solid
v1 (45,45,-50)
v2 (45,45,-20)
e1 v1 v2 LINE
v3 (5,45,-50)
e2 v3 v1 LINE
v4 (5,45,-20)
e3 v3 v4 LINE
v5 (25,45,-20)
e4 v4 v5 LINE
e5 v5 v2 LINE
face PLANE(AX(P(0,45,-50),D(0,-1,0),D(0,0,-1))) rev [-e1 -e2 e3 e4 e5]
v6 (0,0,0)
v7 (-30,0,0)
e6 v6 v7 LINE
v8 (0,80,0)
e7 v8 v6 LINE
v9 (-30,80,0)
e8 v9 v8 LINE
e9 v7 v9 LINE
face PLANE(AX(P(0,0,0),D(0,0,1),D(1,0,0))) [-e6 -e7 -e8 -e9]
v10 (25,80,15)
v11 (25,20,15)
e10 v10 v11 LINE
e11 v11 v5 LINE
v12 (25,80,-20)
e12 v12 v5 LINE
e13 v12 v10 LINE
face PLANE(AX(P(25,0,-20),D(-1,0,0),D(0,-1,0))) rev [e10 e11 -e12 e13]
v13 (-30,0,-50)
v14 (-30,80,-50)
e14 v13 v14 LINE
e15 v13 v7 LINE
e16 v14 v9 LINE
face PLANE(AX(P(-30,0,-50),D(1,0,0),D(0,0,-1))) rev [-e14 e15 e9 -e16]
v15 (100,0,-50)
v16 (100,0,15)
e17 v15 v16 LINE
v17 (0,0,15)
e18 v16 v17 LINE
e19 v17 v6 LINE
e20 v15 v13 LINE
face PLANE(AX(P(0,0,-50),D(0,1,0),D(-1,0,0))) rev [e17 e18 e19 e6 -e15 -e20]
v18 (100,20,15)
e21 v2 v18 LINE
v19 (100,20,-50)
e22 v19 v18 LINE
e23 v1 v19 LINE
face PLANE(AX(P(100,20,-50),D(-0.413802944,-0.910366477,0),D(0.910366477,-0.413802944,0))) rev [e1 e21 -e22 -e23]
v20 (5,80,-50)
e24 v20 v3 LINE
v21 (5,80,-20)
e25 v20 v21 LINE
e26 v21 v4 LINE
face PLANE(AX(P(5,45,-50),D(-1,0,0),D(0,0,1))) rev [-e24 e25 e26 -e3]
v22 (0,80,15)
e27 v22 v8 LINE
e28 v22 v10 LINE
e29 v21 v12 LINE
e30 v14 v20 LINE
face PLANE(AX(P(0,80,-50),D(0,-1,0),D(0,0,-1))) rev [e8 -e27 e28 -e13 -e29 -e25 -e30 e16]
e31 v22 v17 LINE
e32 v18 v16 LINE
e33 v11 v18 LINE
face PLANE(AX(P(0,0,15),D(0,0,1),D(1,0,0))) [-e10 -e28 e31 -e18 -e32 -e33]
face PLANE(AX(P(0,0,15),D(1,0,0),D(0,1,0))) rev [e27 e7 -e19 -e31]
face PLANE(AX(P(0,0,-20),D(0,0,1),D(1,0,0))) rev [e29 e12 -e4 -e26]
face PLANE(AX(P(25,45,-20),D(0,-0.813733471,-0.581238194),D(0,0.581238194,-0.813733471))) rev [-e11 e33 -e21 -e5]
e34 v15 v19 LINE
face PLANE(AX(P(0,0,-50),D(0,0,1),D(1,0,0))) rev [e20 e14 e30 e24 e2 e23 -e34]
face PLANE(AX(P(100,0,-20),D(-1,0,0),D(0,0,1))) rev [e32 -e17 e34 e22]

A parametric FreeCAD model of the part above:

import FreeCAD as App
import Part
import Sketcher

V = App.Vector
Q = App.Units.Quantity

doc = App.newDocument("Part")
params = doc.addObject("Spreadsheet::Sheet", "Params")
for row, (alias, value) in enumerate([
    ("sketch1_width", "30 mm"),
    ("sketch1_height", "80 mm"),
    ("pad1_length", "50 mm"),
    ("sketch2_width", "100 mm"),
    ("sketch2_width2", "75 mm"),
    ("sketch2_height", "20 mm"),
    ("sketch2_height2", "60 mm"),
    ("pad2_length", "15 mm"),
    ("sketch3_width", "100 mm"),
    ("sketch3_width2", "75 mm"),
    ("sketch3_height", "20 mm"),
    ("sketch3_height2", "60 mm"),
    ("pad3_length", "20 mm"),
    ("sketch4_width", "25 mm"),
    ("sketch4_height", "45 mm"),
    ("pad4_length", "30 mm"),
    ("sketch5_width", "75 mm"),
    ("sketch5_height", "25 mm"),
    ("pad5_length", "65 mm"),
    ("sketch6_width", "75 mm"),
    ("sketch6_height", "20 mm"),
    ("pad6_length", "30 mm"),
    ("sketch7_width", "55 mm"),
    ("sketch7_height", "25 mm"),
    ("sketch8_width", "25 mm"),
    ("sketch8_height", "35 mm"),
    ("pocket2_length", "75 mm"),
    ("sketch9_width", "5 mm"),
    ("sketch9_height", "35 mm"),
    ("pad7_length", "30 mm"),
], start=1):
    params.set(f"A{row}", alias)
    params.set(f"B{row}", "=" + value)
    params.setAlias(f"B{row}", alias)

body = doc.addObject("PartDesign::Body", "Body")

sketch1 = body.newObject("Sketcher::SketchObject", "Sketch")
sketch1.AttachmentSupport = (doc.getObject("XY_Plane"), [""])
sketch1.MapMode = "FlatFace"
sketch1.addGeometry([
    Part.LineSegment(V(-30, 80, 0), V(-30, 0, 0)),
    Part.LineSegment(V(-30, 0, 0), V(0, 0, 0)),
    Part.LineSegment(V(0, 0, 0), V(0, 80, 0)),
    Part.LineSegment(V(0, 80, 0), V(-30, 80, 0)),
], False)
sketch1.addConstraint([
    Sketcher.Constraint("Coincident", 0, 2, 1, 1),
    Sketcher.Constraint("Coincident", 1, 2, 2, 1),
    Sketcher.Constraint("Coincident", 2, 2, 3, 1),
    Sketcher.Constraint("Coincident", 3, 2, 0, 1),
    Sketcher.Constraint("Vertical", 0),
    Sketcher.Constraint("Horizontal", 1),
    Sketcher.Constraint("Vertical", 2),
    Sketcher.Constraint("Horizontal", 3),
    Sketcher.Constraint("Coincident", 1, 2, -1, 1),
    Sketcher.Constraint("DistanceX", 1, 1, 1, 2, Q("30 mm")),
    Sketcher.Constraint("DistanceY", 0, 2, 0, 1, Q("80 mm")),
])
sketch1.setExpression("Constraints[9]", "Params.sketch1_width")
sketch1.setExpression("Constraints[10]", "Params.sketch1_height")
pad1 = body.newObject("PartDesign::Pad", "Pad")
pad1.Profile = sketch1
pad1.setExpression("Length", "Params.pad1_length")
pad1.Reversed = True
body2 = doc.addObject("PartDesign::Body", "Body001")

sketch2 = body2.newObject("Sketcher::SketchObject", "Sketch001")
sketch2.AttachmentSupport = (doc.getObject("XY_Plane001"), [""])
sketch2.MapMode = "FlatFace"
sketch2.addGeometry([
    Part.LineSegment(V(0, 0, 0), V(100, 0, 0)),
    Part.LineSegment(V(100, 0, 0), V(100, 20, 0)),
    Part.LineSegment(V(100, 20, 0), V(25, 20, 0)),
    Part.LineSegment(V(25, 20, 0), V(25, 80, 0)),
    Part.LineSegment(V(25, 80, 0), V(0, 80, 0)),
    Part.LineSegment(V(0, 80, 0), V(0, 0, 0)),
], False)
sketch2.addConstraint([
    Sketcher.Constraint("Coincident", 0, 2, 1, 1),
    Sketcher.Constraint("Coincident", 1, 2, 2, 1),
    Sketcher.Constraint("Coincident", 2, 2, 3, 1),
    Sketcher.Constraint("Coincident", 3, 2, 4, 1),
    Sketcher.Constraint("Coincident", 4, 2, 5, 1),
    Sketcher.Constraint("Coincident", 5, 2, 0, 1),
    Sketcher.Constraint("Horizontal", 0),
    Sketcher.Constraint("Vertical", 1),
    Sketcher.Constraint("Horizontal", 2),
    Sketcher.Constraint("Vertical", 3),
    Sketcher.Constraint("Horizontal", 4),
    Sketcher.Constraint("Vertical", 5),
    Sketcher.Constraint("Coincident", 5, 2, -1, 1),
    Sketcher.Constraint("DistanceX", 0, 1, 0, 2, Q("100 mm")),
    Sketcher.Constraint("DistanceX", 2, 2, 2, 1, Q("75 mm")),
    Sketcher.Constraint("DistanceY", 1, 1, 1, 2, Q("20 mm")),
    Sketcher.Constraint("DistanceY", 3, 1, 3, 2, Q("60 mm")),
])
sketch2.setExpression("Constraints[13]", "Params.sketch2_width")
sketch2.setExpression("Constraints[14]", "Params.sketch2_width2")
sketch2.setExpression("Constraints[15]", "Params.sketch2_height")
sketch2.setExpression("Constraints[16]", "Params.sketch2_height2")
pad2 = body2.newObject("PartDesign::Pad", "Pad001")
pad2.Profile = sketch2
pad2.setExpression("Length", "Params.pad2_length")
body.AllowCompound = True
doc.recompute()

boolean = body.newObject("PartDesign::Boolean", "Boolean")
boolean.Type = "Fuse"
boolean.addObjects([body2])

sketch3 = body.newObject("Sketcher::SketchObject", "Sketch002")
sketch3.AttachmentSupport = (doc.getObject("XY_Plane"), [""])
sketch3.MapMode = "FlatFace"
sketch3.addGeometry([
    Part.LineSegment(V(0, 0, 0), V(100, 0, 0)),
    Part.LineSegment(V(100, 0, 0), V(100, 20, 0)),
    Part.LineSegment(V(100, 20, 0), V(25, 20, 0)),
    Part.LineSegment(V(25, 20, 0), V(25, 80, 0)),
    Part.LineSegment(V(25, 80, 0), V(0, 80, 0)),
    Part.LineSegment(V(0, 80, 0), V(0, 0, 0)),
], False)
sketch3.addConstraint([
    Sketcher.Constraint("Coincident", 0, 2, 1, 1),
    Sketcher.Constraint("Coincident", 1, 2, 2, 1),
    Sketcher.Constraint("Coincident", 2, 2, 3, 1),
    Sketcher.Constraint("Coincident", 3, 2, 4, 1),
    Sketcher.Constraint("Coincident", 4, 2, 5, 1),
    Sketcher.Constraint("Coincident", 5, 2, 0, 1),
    Sketcher.Constraint("Horizontal", 0),
    Sketcher.Constraint("Vertical", 1),
    Sketcher.Constraint("Horizontal", 2),
    Sketcher.Constraint("Vertical", 3),
    Sketcher.Constraint("Horizontal", 4),
    Sketcher.Constraint("Vertical", 5),
    Sketcher.Constraint("Coincident", 5, 2, -1, 1),
    Sketcher.Constraint("DistanceX", 0, 1, 0, 2, Q("100 mm")),
    Sketcher.Constraint("DistanceX", 2, 2, 2, 1, Q("75 mm")),
    Sketcher.Constraint("DistanceY", 1, 1, 1, 2, Q("20 mm")),
    Sketcher.Constraint("DistanceY", 3, 1, 3, 2, Q("60 mm")),
])
sketch3.setExpression("Constraints[13]", "Params.sketch3_width")
sketch3.setExpression("Constraints[14]", "Params.sketch3_width2")
sketch3.setExpression("Constraints[15]", "Params.sketch3_height")
sketch3.setExpression("Constraints[16]", "Params.sketch3_height2")
pad3 = body.newObject("PartDesign::Pad", "Pad002")
pad3.Profile = sketch3
pad3.setExpression("Length", "Params.pad3_length")
pad3.Reversed = True

sketch4 = body.newObject("Sketcher::SketchObject", "Sketch003")
sketch4.AttachmentSupport = (doc.getObject("XY_Plane"), [""])
sketch4.MapMode = "FlatFace"
sketch4.AttachmentOffset = App.Placement(V(0, 0, -20), App.Rotation())
sketch4.addGeometry([
    Part.LineSegment(V(25, 45, 0), V(25, 0, 0)),
    Part.LineSegment(V(25, 0, 0), V(0, 0, 0)),
    Part.LineSegment(V(0, 0, 0), V(0, 45, 0)),
    Part.LineSegment(V(0, 45, 0), V(25, 45, 0)),
], False)
sketch4.addConstraint([
    Sketcher.Constraint("Coincident", 0, 2, 1, 1),
    Sketcher.Constraint("Coincident", 1, 2, 2, 1),
    Sketcher.Constraint("Coincident", 2, 2, 3, 1),
    Sketcher.Constraint("Coincident", 3, 2, 0, 1),
    Sketcher.Constraint("Vertical", 0),
    Sketcher.Constraint("Horizontal", 1),
    Sketcher.Constraint("Vertical", 2),
    Sketcher.Constraint("Horizontal", 3),
    Sketcher.Constraint("Coincident", 1, 2, -1, 1),
    Sketcher.Constraint("DistanceX", 1, 2, 1, 1, Q("25 mm")),
    Sketcher.Constraint("DistanceY", 0, 2, 0, 1, Q("45 mm")),
])
sketch4.setExpression("Constraints[9]", "Params.sketch4_width")
sketch4.setExpression("Constraints[10]", "Params.sketch4_height")
pad4 = body.newObject("PartDesign::Pad", "Pad003")
pad4.Profile = sketch4
pad4.setExpression("Length", "Params.pad4_length")
pad4.Reversed = True

sketch5 = body.newObject("Sketcher::SketchObject", "Sketch004")
sketch5.AttachmentSupport = (doc.getObject("XY_Plane"), [""])
sketch5.MapMode = "FlatFace"
sketch5.AttachmentOffset = App.Placement(V(0, 0, 15), App.Rotation())
sketch5.addGeometry([
    Part.LineSegment(V(25, 45, 0), V(25, 20, 0)),
    Part.LineSegment(V(25, 20, 0), V(100, 20, 0)),
    Part.LineSegment(V(100, 20, 0), V(100, 45, 0)),
    Part.LineSegment(V(100, 45, 0), V(25, 45, 0)),
], False)
sketch5.addConstraint([
    Sketcher.Constraint("Coincident", 0, 2, 1, 1),
    Sketcher.Constraint("Coincident", 1, 2, 2, 1),
    Sketcher.Constraint("Coincident", 2, 2, 3, 1),
    Sketcher.Constraint("Coincident", 3, 2, 0, 1),
    Sketcher.Constraint("Vertical", 0),
    Sketcher.Constraint("Horizontal", 1),
    Sketcher.Constraint("Vertical", 2),
    Sketcher.Constraint("Horizontal", 3),
    Sketcher.Constraint("DistanceX", 1, 1, 1, 2, Q("75 mm")),
    Sketcher.Constraint("DistanceY", 0, 2, 0, 1, Q("25 mm")),
    Sketcher.Constraint("DistanceX", -1, 1, 0, 2, Q("25 mm")),
    Sketcher.Constraint("DistanceY", -1, 1, 0, 2, Q("20 mm")),
])
sketch5.setExpression("Constraints[8]", "Params.sketch5_width")
sketch5.setExpression("Constraints[9]", "Params.sketch5_height")
pad5 = body.newObject("PartDesign::Pad", "Pad004")
pad5.Profile = sketch5
pad5.setExpression("Length", "Params.pad5_length")
pad5.Reversed = True

sketch6 = body.newObject("Sketcher::SketchObject", "Sketch005")
sketch6.AttachmentSupport = (doc.getObject("XY_Plane"), [""])
sketch6.MapMode = "FlatFace"
sketch6.AttachmentOffset = App.Placement(V(0, 0, -20), App.Rotation())
sketch6.addGeometry([
    Part.LineSegment(V(100, 20, 0), V(100, 0, 0)),
    Part.LineSegment(V(100, 0, 0), V(25, 0, 0)),
    Part.LineSegment(V(25, 0, 0), V(25, 20, 0)),
    Part.LineSegment(V(25, 20, 0), V(100, 20, 0)),
], False)
sketch6.addConstraint([
    Sketcher.Constraint("Coincident", 0, 2, 1, 1),
    Sketcher.Constraint("Coincident", 1, 2, 2, 1),
    Sketcher.Constraint("Coincident", 2, 2, 3, 1),
    Sketcher.Constraint("Coincident", 3, 2, 0, 1),
    Sketcher.Constraint("Vertical", 0),
    Sketcher.Constraint("Horizontal", 1),
    Sketcher.Constraint("Vertical", 2),
    Sketcher.Constraint("Horizontal", 3),
    Sketcher.Constraint("PointOnObject", 0, 2, -1),
    Sketcher.Constraint("DistanceX", 1, 2, 1, 1, Q("75 mm")),
    Sketcher.Constraint("DistanceY", 0, 2, 0, 1, Q("20 mm")),
    Sketcher.Constraint("DistanceX", -1, 1, 0, 2, Q("100 mm")),
])
sketch6.setExpression("Constraints[9]", "Params.sketch6_width")
sketch6.setExpression("Constraints[10]", "Params.sketch6_height")
pad6 = body.newObject("PartDesign::Pad", "Pad005")
pad6.Profile = sketch6
pad6.setExpression("Length", "Params.pad6_length")
pad6.Reversed = True

sketch7 = body.newObject("Sketcher::SketchObject", "Sketch006")
sketch7.AttachmentSupport = (doc.getObject("XY_Plane"), [""])
sketch7.MapMode = "FlatFace"
sketch7.AttachmentOffset = App.Placement(V(0, 0, 15), App.Rotation())
sketch7.addGeometry([
    Part.LineSegment(V(100, 20, 0), V(100, 45, 0)),
    Part.LineSegment(V(100, 45, 0), V(45, 45, 0)),
    Part.LineSegment(V(45, 45, 0), V(100, 20, 0)),
], False)
sketch7.addConstraint([
    Sketcher.Constraint("Coincident", 0, 2, 1, 1),
    Sketcher.Constraint("Coincident", 1, 2, 2, 1),
    Sketcher.Constraint("Coincident", 2, 2, 0, 1),
    Sketcher.Constraint("Vertical", 0),
    Sketcher.Constraint("Horizontal", 1),
    Sketcher.Constraint("DistanceX", 1, 2, 1, 1, Q("55 mm")),
    Sketcher.Constraint("DistanceY", 0, 1, 0, 2, Q("25 mm")),
    Sketcher.Constraint("DistanceX", -1, 1, 0, 2, Q("100 mm")),
    Sketcher.Constraint("DistanceY", -1, 1, 0, 2, Q("45 mm")),
])
sketch7.setExpression("Constraints[5]", "Params.sketch7_width")
sketch7.setExpression("Constraints[6]", "Params.sketch7_height")
pocket1 = body.newObject("PartDesign::Pocket", "Pocket")
pocket1.Profile = sketch7
pocket1.Type = "ThroughAll"

sketch8 = body.newObject("Sketcher::SketchObject", "Sketch007")
sketch8.AttachmentSupport = (doc.getObject("YZ_Plane"), [""])
sketch8.MapMode = "FlatFace"
sketch8.AttachmentOffset = App.Placement(V(0, 0, 100), App.Rotation())
sketch8.addGeometry([
    Part.LineSegment(V(45, -20, 0), V(45, 15, 0)),
    Part.LineSegment(V(45, 15, 0), V(20, 15, 0)),
    Part.LineSegment(V(20, 15, 0), V(45, -20, 0)),
], False)
sketch8.addConstraint([
    Sketcher.Constraint("Coincident", 0, 2, 1, 1),
    Sketcher.Constraint("Coincident", 1, 2, 2, 1),
    Sketcher.Constraint("Coincident", 2, 2, 0, 1),
    Sketcher.Constraint("Vertical", 0),
    Sketcher.Constraint("Horizontal", 1),
    Sketcher.Constraint("DistanceX", 1, 2, 1, 1, Q("25 mm")),
    Sketcher.Constraint("DistanceY", 0, 1, 0, 2, Q("35 mm")),
    Sketcher.Constraint("DistanceX", -1, 1, 0, 2, Q("45 mm")),
    Sketcher.Constraint("DistanceY", -1, 1, 0, 2, Q("15 mm")),
])
sketch8.setExpression("Constraints[5]", "Params.sketch8_width")
sketch8.setExpression("Constraints[6]", "Params.sketch8_height")
pocket2 = body.newObject("PartDesign::Pocket", "Pocket001")
pocket2.Profile = sketch8
pocket2.setExpression("Length", "Params.pocket2_length")

sketch9 = body.newObject("Sketcher::SketchObject", "Sketch008")
sketch9.AttachmentSupport = (doc.getObject("XY_Plane"), [""])
sketch9.MapMode = "FlatFace"
sketch9.AttachmentOffset = App.Placement(V(0, 0, -20), App.Rotation())
sketch9.addGeometry([
    Part.LineSegment(V(5, 80, 0), V(5, 45, 0)),
    Part.LineSegment(V(5, 45, 0), V(0, 45, 0)),
    Part.LineSegment(V(0, 45, 0), V(0, 80, 0)),
    Part.LineSegment(V(0, 80, 0), V(5, 80, 0)),
], False)
sketch9.addConstraint([
    Sketcher.Constraint("Coincident", 0, 2, 1, 1),
    Sketcher.Constraint("Coincident", 1, 2, 2, 1),
    Sketcher.Constraint("Coincident", 2, 2, 3, 1),
    Sketcher.Constraint("Coincident", 3, 2, 0, 1),
    Sketcher.Constraint("Vertical", 0),
    Sketcher.Constraint("Horizontal", 1),
    Sketcher.Constraint("Vertical", 2),
    Sketcher.Constraint("Horizontal", 3),
    Sketcher.Constraint("PointOnObject", 1, 2, -2),
    Sketcher.Constraint("DistanceX", 1, 2, 1, 1, Q("5 mm")),
    Sketcher.Constraint("DistanceY", 0, 2, 0, 1, Q("35 mm")),
    Sketcher.Constraint("DistanceY", -1, 1, 0, 2, Q("45 mm")),
])
sketch9.setExpression("Constraints[9]", "Params.sketch9_width")
sketch9.setExpression("Constraints[10]", "Params.sketch9_height")
pad7 = body.newObject("PartDesign::Pad", "Pad006")
pad7.Profile = sketch9
pad7.setExpression("Length", "Params.pad7_length")
pad7.Reversed = True

doc.recompute()
